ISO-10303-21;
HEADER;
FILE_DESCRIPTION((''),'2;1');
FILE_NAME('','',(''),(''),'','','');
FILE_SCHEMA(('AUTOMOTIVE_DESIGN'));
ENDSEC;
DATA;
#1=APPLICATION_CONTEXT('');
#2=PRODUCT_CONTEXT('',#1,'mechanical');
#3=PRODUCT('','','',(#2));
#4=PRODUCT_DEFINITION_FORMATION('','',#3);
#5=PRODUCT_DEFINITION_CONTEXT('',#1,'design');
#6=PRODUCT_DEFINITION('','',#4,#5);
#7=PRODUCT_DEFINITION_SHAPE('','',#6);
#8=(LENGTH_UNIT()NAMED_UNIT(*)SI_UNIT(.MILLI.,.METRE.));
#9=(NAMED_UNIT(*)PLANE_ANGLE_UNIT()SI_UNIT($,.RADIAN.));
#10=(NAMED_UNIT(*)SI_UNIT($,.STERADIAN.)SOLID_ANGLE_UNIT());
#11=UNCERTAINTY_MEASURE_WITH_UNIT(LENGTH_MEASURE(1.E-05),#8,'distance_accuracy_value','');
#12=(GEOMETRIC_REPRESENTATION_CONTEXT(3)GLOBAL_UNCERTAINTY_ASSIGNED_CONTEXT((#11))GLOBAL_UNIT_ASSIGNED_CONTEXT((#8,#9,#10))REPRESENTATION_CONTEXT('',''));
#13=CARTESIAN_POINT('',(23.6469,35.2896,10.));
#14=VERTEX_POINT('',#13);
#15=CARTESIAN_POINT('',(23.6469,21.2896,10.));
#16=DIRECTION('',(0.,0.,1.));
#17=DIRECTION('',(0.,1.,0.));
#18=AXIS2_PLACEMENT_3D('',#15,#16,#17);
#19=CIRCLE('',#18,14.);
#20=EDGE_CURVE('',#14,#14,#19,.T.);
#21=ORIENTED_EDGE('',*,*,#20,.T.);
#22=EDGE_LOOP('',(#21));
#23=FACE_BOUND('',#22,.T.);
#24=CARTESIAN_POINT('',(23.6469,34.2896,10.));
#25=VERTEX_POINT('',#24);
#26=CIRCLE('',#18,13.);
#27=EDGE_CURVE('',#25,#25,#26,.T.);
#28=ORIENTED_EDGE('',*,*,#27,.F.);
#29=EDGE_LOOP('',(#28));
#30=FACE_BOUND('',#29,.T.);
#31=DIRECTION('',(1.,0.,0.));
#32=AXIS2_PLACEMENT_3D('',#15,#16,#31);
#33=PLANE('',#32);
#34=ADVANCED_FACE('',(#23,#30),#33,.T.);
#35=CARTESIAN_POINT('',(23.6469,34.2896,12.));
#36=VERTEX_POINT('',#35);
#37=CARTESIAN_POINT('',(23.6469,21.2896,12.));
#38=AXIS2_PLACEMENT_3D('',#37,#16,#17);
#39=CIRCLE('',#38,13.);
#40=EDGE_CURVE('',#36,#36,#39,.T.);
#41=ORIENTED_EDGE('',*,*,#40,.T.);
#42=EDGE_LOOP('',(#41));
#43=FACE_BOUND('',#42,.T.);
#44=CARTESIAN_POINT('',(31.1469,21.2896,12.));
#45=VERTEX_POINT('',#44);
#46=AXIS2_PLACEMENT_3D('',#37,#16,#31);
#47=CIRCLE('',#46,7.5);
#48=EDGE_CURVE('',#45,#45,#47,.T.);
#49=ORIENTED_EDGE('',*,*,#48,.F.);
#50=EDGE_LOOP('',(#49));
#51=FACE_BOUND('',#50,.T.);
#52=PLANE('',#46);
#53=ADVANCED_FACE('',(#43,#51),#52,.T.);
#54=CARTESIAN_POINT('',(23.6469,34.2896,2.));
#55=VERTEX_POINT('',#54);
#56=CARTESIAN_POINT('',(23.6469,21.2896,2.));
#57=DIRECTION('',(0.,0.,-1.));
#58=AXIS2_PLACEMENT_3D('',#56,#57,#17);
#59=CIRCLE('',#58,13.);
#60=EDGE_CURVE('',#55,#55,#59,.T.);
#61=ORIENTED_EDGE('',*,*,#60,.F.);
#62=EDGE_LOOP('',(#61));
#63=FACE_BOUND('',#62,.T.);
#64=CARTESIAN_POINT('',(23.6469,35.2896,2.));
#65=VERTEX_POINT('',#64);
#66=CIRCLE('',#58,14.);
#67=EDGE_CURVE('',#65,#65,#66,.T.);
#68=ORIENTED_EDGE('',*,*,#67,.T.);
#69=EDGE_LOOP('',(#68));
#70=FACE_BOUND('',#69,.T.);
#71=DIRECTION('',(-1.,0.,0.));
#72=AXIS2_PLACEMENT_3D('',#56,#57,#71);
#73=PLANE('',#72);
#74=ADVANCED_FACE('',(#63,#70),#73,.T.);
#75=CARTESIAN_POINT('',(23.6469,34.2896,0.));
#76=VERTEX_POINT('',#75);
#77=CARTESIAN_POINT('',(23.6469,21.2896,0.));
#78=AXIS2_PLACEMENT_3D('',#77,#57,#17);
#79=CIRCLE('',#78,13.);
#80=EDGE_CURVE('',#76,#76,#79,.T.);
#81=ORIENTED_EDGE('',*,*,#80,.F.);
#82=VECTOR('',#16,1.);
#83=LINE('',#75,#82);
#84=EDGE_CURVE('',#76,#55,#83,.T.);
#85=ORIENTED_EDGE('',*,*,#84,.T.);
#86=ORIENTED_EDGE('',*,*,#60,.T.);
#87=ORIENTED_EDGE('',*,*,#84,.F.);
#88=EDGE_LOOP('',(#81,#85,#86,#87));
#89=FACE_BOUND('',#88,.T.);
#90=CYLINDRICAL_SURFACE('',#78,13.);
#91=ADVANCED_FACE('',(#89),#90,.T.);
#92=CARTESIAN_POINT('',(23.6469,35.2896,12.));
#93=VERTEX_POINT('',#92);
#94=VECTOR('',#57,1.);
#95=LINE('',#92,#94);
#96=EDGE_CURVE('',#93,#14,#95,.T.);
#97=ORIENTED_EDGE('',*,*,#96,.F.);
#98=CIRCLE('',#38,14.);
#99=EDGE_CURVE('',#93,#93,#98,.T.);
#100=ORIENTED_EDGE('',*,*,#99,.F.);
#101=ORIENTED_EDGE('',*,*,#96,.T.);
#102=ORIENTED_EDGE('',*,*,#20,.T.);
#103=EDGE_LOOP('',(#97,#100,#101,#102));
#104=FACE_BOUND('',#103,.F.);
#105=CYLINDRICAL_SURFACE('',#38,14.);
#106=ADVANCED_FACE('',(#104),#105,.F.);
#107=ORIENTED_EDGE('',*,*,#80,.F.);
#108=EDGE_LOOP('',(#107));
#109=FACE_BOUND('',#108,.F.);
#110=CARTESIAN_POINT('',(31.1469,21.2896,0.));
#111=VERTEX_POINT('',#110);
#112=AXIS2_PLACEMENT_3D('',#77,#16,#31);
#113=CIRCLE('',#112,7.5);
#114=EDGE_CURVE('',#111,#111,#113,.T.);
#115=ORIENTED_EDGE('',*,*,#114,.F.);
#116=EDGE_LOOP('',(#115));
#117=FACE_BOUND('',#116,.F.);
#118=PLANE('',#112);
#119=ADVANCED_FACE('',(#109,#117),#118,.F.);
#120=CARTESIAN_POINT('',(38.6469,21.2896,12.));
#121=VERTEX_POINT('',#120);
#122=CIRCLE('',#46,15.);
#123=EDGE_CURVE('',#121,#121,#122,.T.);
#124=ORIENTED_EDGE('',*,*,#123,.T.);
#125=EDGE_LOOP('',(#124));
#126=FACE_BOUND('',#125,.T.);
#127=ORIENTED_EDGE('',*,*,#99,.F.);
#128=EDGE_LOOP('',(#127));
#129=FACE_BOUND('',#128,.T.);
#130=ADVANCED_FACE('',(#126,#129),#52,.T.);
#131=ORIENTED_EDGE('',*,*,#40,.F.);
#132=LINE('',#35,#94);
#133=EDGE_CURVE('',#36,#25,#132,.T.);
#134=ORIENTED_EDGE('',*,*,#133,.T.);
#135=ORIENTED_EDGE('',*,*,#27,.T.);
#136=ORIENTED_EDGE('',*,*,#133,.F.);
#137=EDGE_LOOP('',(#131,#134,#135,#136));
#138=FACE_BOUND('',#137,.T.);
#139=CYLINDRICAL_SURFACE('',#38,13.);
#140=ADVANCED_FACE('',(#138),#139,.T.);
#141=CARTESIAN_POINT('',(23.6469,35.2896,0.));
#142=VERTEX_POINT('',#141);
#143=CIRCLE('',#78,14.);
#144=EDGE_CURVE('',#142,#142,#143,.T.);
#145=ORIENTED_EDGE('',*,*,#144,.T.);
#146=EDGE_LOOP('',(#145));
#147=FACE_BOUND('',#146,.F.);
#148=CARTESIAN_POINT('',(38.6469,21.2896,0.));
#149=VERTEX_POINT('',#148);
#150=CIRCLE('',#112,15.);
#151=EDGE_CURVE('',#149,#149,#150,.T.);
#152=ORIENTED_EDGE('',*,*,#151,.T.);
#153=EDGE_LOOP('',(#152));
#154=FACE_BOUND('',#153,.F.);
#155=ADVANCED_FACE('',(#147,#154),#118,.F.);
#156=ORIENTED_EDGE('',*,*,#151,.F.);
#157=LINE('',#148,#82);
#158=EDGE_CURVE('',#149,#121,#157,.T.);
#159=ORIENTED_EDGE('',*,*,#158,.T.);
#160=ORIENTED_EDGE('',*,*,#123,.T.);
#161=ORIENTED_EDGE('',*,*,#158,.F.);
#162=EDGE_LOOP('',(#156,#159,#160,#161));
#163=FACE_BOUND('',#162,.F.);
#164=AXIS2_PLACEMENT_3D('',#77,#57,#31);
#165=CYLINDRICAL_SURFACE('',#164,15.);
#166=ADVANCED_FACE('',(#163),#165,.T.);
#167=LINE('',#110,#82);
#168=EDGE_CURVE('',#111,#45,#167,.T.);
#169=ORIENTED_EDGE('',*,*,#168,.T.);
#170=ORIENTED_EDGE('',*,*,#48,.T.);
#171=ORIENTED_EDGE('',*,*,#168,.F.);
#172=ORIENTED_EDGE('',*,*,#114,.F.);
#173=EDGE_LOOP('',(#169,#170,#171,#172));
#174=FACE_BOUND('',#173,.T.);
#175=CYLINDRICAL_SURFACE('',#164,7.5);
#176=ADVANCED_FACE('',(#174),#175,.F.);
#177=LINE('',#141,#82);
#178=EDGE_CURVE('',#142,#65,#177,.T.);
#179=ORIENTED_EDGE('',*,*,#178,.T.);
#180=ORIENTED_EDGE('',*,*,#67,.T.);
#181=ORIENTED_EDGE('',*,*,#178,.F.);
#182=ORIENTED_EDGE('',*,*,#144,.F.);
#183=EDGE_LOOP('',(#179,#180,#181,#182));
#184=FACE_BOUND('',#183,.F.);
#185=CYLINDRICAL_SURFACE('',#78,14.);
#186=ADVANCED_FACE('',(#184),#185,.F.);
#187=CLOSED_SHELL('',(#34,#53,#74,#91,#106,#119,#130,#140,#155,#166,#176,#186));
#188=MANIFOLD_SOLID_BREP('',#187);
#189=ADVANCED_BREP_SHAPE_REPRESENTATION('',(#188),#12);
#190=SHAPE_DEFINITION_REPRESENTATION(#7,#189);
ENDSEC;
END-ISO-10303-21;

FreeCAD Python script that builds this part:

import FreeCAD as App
import Part
import Sketcher

V = App.Vector

doc = App.newDocument("Part")
body = doc.addObject("PartDesign::Body", "Body")

# Sketch on XY plane
sketch1 = doc.addObject("Sketcher::SketchObject", "Sketch")
body.addObject(sketch1)
sketch1.AttachmentSupport = (doc.XY_Plane, [""])
sketch1.MapMode = "FlatFace"
sketch1.addGeometry([
    Part.Circle(V(23.6469, 21.2896, 0), V(0, 0, 1), 15),
    Part.Circle(V(23.6469, 21.2896, 0), V(0, 0, 1), 7.5),
], False)
sketch1.addConstraint([
    Sketcher.Constraint("Coincident", 1, 3, 0, 3),
    Sketcher.Constraint("Diameter", 0, 30.0),
    Sketcher.Constraint("Diameter", 1, 15.0),
    Sketcher.Constraint("DistanceX", -1, 1, 0, 3, 23.647),
    Sketcher.Constraint("DistanceY", -1, 1, 0, 3, 21.2896),
])
pad1 = doc.addObject("PartDesign::Pad", "Pad")
body.addObject(pad1)
pad1.Profile = sketch1
pad1.Length = 12

# Sketch on XY plane
sketch2 = doc.addObject("Sketcher::SketchObject", "Sketch001")
body.addObject(sketch2)
sketch2.AttachmentSupport = (doc.XY_Plane, [""])
sketch2.MapMode = "FlatFace"
sketch2.AttachmentOffset = App.Placement(V(0, 0, 12), App.Rotation())
sketch2.addGeometry([
    Part.Circle(V(23.6469, 21.2896, 0), V(0, 0, 1), 14),
    Part.Circle(V(23.6469, 21.2896, 0), V(0, 0, 1), 13),
], False)
sketch2.addConstraint([
    Sketcher.Constraint("Coincident", 1, 3, 0, 3),
    Sketcher.Constraint("Diameter", 0, 28.0),
    Sketcher.Constraint("Diameter", 1, 26.0),
    Sketcher.Constraint("DistanceX", -1, 1, 0, 3, 23.647),
    Sketcher.Constraint("DistanceY", -1, 1, 0, 3, 21.2896),
])
pocket1 = doc.addObject("PartDesign::Pocket", "Pocket")
body.addObject(pocket1)
pocket1.Profile = sketch2
pocket1.Length = 2

# Sketch on XY plane
sketch3 = doc.addObject("Sketcher::SketchObject", "Sketch002")
body.addObject(sketch3)
sketch3.AttachmentSupport = (doc.XY_Plane, [""])
sketch3.MapMode = "FlatFace"
sketch3.addGeometry([
    Part.Circle(V(23.6469, 21.2896, 0), V(0, 0, 1), 14),
    Part.Circle(V(23.6469, 21.2896, 0), V(0, 0, 1), 13),
], False)
sketch3.addConstraint([
    Sketcher.Constraint("Coincident", 1, 3, 0, 3),
    Sketcher.Constraint("Diameter", 0, 28.0),
    Sketcher.Constraint("Diameter", 1, 26.0),
    Sketcher.Constraint("DistanceX", -1, 1, 0, 3, 23.647),
    Sketcher.Constraint("DistanceY", -1, 1, 0, 3, 21.2896),
])
pocket2 = doc.addObject("PartDesign::Pocket", "Pocket001")
body.addObject(pocket2)
pocket2.Profile = sketch3
pocket2.Length = 2
pocket2.Reversed = True

doc.recompute()
